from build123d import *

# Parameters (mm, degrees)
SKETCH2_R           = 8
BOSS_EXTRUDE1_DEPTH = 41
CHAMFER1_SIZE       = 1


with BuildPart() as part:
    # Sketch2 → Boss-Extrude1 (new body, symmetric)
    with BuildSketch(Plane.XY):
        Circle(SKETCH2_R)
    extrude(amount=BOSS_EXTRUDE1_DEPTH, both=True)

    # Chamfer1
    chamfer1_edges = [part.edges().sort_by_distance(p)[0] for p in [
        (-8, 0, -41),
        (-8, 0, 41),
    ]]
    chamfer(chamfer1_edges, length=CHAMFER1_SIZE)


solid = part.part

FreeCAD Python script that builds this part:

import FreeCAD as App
import Part
import Sketcher
Q = App.Units.Quantity


def edges_at(feature, points):
    """Names of the edges that pass closest to the given points."""
    edges = feature.Shape.Edges
    near = lambda p: min(range(len(edges)), key=lambda i: edges[i].distToShape(Part.Vertex(*p))[0])
    return sorted({f"Edge{near(p) + 1}" for p in points})

doc = App.newDocument("Part")
body = doc.addObject("PartDesign::Body", "Body")

# Sketch on XY plane
sketch1 = doc.addObject("Sketcher::SketchObject", "Sketch")
body.addObject(sketch1)
sketch1.AttachmentSupport = (doc.XY_Plane, [""])
sketch1.MapMode = "FlatFace"
sketch1.addGeometry(Part.Circle(App.Vector(0, 0, 0), App.Vector(0, 0, 1), 8), False)
sketch1.addConstraint([
    Sketcher.Constraint("Coincident", 0, 3, -1, 1),
    Sketcher.Constraint("Diameter", 0, Q("16 mm")),
])
pad1 = doc.addObject("PartDesign::Pad", "Pad")
body.addObject(pad1)
pad1.Profile = sketch1
pad1.Length = 82
pad1.Midplane = True
doc.recompute()

chamfer = doc.addObject("PartDesign::Chamfer", "Chamfer")
body.addObject(chamfer)
chamfer.Base = (pad1, edges_at(pad1, [(-8, 0, -41), (-8, 0, 41)]))
chamfer.Size = 1

doc.recompute()
